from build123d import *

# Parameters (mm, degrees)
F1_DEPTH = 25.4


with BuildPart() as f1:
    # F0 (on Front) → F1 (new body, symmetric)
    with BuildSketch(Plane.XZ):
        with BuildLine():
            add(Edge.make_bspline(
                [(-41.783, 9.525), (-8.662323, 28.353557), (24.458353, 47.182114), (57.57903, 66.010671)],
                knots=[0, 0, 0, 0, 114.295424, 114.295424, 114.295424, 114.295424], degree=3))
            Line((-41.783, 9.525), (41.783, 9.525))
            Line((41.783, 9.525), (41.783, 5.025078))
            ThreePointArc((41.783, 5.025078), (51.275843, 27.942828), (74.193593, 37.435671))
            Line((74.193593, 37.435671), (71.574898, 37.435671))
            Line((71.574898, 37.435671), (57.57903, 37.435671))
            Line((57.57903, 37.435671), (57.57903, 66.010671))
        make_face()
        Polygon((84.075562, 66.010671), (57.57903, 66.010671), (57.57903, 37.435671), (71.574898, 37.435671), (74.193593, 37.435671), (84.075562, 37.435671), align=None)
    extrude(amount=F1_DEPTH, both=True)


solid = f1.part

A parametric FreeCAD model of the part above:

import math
import FreeCAD as App
import Part
import Sketcher
from FreeCAD import Vector
Q = App.Units.Quantity

doc = App.newDocument("Part")
body = doc.addObject("PartDesign::Body", "Body")

sketch1 = body.newObject("Sketcher::SketchObject", "Sketch")
sketch1.AttachmentSupport = (doc.getObject("XZ_Plane"), [""])
sketch1.MapMode = "FlatFace"
sketch1.addGeometry([
    Part.BSplineCurve([Vector(-41.783, 9.525, 0), Vector(-8.662323, 28.353557, 0), Vector(24.458353, 47.182114, 0), Vector(57.57903, 66.010671, 0)], [4, 4], [0, 114.295424], False, 3, [1, 1, 1, 1], False),
    Part.LineSegment(Vector(-41.783, 9.525, 0), Vector(41.783, 9.525, 0)),
    Part.LineSegment(Vector(41.783, 9.525, 0), Vector(41.783, 5.025078, 0)),
    Part.ArcOfCircle(Part.Circle(Vector(74.193593, 5.025078, 0), Vector(0, 0, 1), 32.410593), math.radians(90.000001), math.radians(179.999999)),
    Part.LineSegment(Vector(74.193593, 37.435671, 0), Vector(84.075562, 37.435671, 0)),
    Part.LineSegment(Vector(84.075562, 37.435671, 0), Vector(84.075562, 66.010671, 0)),
    Part.LineSegment(Vector(84.075562, 66.010671, 0), Vector(57.57903, 66.010671, 0)),
], False)
sketch1.addConstraint([
    Sketcher.Constraint("Block", 0),
    Sketcher.Constraint("Coincident", 0, 1, 1, 1),
    Sketcher.Constraint("Coincident", 1, 2, 2, 1),
    Sketcher.Constraint("Tangent", 2, 2, 3, 2),
    Sketcher.Constraint("Tangent", 3, 1, 4, 1),
    Sketcher.Constraint("Coincident", 4, 2, 5, 1),
    Sketcher.Constraint("Coincident", 5, 2, 6, 1),
    Sketcher.Constraint("Coincident", 6, 2, 0, 2),
    Sketcher.Constraint("Horizontal", 1),
    Sketcher.Constraint("Vertical", 2),
    Sketcher.Constraint("Horizontal", 4),
    Sketcher.Constraint("Vertical", 5),
    Sketcher.Constraint("Horizontal", 6),
    Sketcher.Constraint("DistanceX", 1, 1, 1, 2, Q("3.29 in")),
    Sketcher.Constraint("DistanceY", 5, 1, 5, 2, Q("1.125 in")),
    Sketcher.Constraint("Radius", 3, Q("32.410593 mm")),
    Sketcher.Constraint("DistanceX", 4, 1, 4, 2, Q("9.881969 mm")),
])
pad1 = body.newObject("PartDesign::Pad", "Pad")
pad1.Profile = sketch1
pad1.Length = Q("2 in")
pad1.Midplane = True

doc.recompute()
